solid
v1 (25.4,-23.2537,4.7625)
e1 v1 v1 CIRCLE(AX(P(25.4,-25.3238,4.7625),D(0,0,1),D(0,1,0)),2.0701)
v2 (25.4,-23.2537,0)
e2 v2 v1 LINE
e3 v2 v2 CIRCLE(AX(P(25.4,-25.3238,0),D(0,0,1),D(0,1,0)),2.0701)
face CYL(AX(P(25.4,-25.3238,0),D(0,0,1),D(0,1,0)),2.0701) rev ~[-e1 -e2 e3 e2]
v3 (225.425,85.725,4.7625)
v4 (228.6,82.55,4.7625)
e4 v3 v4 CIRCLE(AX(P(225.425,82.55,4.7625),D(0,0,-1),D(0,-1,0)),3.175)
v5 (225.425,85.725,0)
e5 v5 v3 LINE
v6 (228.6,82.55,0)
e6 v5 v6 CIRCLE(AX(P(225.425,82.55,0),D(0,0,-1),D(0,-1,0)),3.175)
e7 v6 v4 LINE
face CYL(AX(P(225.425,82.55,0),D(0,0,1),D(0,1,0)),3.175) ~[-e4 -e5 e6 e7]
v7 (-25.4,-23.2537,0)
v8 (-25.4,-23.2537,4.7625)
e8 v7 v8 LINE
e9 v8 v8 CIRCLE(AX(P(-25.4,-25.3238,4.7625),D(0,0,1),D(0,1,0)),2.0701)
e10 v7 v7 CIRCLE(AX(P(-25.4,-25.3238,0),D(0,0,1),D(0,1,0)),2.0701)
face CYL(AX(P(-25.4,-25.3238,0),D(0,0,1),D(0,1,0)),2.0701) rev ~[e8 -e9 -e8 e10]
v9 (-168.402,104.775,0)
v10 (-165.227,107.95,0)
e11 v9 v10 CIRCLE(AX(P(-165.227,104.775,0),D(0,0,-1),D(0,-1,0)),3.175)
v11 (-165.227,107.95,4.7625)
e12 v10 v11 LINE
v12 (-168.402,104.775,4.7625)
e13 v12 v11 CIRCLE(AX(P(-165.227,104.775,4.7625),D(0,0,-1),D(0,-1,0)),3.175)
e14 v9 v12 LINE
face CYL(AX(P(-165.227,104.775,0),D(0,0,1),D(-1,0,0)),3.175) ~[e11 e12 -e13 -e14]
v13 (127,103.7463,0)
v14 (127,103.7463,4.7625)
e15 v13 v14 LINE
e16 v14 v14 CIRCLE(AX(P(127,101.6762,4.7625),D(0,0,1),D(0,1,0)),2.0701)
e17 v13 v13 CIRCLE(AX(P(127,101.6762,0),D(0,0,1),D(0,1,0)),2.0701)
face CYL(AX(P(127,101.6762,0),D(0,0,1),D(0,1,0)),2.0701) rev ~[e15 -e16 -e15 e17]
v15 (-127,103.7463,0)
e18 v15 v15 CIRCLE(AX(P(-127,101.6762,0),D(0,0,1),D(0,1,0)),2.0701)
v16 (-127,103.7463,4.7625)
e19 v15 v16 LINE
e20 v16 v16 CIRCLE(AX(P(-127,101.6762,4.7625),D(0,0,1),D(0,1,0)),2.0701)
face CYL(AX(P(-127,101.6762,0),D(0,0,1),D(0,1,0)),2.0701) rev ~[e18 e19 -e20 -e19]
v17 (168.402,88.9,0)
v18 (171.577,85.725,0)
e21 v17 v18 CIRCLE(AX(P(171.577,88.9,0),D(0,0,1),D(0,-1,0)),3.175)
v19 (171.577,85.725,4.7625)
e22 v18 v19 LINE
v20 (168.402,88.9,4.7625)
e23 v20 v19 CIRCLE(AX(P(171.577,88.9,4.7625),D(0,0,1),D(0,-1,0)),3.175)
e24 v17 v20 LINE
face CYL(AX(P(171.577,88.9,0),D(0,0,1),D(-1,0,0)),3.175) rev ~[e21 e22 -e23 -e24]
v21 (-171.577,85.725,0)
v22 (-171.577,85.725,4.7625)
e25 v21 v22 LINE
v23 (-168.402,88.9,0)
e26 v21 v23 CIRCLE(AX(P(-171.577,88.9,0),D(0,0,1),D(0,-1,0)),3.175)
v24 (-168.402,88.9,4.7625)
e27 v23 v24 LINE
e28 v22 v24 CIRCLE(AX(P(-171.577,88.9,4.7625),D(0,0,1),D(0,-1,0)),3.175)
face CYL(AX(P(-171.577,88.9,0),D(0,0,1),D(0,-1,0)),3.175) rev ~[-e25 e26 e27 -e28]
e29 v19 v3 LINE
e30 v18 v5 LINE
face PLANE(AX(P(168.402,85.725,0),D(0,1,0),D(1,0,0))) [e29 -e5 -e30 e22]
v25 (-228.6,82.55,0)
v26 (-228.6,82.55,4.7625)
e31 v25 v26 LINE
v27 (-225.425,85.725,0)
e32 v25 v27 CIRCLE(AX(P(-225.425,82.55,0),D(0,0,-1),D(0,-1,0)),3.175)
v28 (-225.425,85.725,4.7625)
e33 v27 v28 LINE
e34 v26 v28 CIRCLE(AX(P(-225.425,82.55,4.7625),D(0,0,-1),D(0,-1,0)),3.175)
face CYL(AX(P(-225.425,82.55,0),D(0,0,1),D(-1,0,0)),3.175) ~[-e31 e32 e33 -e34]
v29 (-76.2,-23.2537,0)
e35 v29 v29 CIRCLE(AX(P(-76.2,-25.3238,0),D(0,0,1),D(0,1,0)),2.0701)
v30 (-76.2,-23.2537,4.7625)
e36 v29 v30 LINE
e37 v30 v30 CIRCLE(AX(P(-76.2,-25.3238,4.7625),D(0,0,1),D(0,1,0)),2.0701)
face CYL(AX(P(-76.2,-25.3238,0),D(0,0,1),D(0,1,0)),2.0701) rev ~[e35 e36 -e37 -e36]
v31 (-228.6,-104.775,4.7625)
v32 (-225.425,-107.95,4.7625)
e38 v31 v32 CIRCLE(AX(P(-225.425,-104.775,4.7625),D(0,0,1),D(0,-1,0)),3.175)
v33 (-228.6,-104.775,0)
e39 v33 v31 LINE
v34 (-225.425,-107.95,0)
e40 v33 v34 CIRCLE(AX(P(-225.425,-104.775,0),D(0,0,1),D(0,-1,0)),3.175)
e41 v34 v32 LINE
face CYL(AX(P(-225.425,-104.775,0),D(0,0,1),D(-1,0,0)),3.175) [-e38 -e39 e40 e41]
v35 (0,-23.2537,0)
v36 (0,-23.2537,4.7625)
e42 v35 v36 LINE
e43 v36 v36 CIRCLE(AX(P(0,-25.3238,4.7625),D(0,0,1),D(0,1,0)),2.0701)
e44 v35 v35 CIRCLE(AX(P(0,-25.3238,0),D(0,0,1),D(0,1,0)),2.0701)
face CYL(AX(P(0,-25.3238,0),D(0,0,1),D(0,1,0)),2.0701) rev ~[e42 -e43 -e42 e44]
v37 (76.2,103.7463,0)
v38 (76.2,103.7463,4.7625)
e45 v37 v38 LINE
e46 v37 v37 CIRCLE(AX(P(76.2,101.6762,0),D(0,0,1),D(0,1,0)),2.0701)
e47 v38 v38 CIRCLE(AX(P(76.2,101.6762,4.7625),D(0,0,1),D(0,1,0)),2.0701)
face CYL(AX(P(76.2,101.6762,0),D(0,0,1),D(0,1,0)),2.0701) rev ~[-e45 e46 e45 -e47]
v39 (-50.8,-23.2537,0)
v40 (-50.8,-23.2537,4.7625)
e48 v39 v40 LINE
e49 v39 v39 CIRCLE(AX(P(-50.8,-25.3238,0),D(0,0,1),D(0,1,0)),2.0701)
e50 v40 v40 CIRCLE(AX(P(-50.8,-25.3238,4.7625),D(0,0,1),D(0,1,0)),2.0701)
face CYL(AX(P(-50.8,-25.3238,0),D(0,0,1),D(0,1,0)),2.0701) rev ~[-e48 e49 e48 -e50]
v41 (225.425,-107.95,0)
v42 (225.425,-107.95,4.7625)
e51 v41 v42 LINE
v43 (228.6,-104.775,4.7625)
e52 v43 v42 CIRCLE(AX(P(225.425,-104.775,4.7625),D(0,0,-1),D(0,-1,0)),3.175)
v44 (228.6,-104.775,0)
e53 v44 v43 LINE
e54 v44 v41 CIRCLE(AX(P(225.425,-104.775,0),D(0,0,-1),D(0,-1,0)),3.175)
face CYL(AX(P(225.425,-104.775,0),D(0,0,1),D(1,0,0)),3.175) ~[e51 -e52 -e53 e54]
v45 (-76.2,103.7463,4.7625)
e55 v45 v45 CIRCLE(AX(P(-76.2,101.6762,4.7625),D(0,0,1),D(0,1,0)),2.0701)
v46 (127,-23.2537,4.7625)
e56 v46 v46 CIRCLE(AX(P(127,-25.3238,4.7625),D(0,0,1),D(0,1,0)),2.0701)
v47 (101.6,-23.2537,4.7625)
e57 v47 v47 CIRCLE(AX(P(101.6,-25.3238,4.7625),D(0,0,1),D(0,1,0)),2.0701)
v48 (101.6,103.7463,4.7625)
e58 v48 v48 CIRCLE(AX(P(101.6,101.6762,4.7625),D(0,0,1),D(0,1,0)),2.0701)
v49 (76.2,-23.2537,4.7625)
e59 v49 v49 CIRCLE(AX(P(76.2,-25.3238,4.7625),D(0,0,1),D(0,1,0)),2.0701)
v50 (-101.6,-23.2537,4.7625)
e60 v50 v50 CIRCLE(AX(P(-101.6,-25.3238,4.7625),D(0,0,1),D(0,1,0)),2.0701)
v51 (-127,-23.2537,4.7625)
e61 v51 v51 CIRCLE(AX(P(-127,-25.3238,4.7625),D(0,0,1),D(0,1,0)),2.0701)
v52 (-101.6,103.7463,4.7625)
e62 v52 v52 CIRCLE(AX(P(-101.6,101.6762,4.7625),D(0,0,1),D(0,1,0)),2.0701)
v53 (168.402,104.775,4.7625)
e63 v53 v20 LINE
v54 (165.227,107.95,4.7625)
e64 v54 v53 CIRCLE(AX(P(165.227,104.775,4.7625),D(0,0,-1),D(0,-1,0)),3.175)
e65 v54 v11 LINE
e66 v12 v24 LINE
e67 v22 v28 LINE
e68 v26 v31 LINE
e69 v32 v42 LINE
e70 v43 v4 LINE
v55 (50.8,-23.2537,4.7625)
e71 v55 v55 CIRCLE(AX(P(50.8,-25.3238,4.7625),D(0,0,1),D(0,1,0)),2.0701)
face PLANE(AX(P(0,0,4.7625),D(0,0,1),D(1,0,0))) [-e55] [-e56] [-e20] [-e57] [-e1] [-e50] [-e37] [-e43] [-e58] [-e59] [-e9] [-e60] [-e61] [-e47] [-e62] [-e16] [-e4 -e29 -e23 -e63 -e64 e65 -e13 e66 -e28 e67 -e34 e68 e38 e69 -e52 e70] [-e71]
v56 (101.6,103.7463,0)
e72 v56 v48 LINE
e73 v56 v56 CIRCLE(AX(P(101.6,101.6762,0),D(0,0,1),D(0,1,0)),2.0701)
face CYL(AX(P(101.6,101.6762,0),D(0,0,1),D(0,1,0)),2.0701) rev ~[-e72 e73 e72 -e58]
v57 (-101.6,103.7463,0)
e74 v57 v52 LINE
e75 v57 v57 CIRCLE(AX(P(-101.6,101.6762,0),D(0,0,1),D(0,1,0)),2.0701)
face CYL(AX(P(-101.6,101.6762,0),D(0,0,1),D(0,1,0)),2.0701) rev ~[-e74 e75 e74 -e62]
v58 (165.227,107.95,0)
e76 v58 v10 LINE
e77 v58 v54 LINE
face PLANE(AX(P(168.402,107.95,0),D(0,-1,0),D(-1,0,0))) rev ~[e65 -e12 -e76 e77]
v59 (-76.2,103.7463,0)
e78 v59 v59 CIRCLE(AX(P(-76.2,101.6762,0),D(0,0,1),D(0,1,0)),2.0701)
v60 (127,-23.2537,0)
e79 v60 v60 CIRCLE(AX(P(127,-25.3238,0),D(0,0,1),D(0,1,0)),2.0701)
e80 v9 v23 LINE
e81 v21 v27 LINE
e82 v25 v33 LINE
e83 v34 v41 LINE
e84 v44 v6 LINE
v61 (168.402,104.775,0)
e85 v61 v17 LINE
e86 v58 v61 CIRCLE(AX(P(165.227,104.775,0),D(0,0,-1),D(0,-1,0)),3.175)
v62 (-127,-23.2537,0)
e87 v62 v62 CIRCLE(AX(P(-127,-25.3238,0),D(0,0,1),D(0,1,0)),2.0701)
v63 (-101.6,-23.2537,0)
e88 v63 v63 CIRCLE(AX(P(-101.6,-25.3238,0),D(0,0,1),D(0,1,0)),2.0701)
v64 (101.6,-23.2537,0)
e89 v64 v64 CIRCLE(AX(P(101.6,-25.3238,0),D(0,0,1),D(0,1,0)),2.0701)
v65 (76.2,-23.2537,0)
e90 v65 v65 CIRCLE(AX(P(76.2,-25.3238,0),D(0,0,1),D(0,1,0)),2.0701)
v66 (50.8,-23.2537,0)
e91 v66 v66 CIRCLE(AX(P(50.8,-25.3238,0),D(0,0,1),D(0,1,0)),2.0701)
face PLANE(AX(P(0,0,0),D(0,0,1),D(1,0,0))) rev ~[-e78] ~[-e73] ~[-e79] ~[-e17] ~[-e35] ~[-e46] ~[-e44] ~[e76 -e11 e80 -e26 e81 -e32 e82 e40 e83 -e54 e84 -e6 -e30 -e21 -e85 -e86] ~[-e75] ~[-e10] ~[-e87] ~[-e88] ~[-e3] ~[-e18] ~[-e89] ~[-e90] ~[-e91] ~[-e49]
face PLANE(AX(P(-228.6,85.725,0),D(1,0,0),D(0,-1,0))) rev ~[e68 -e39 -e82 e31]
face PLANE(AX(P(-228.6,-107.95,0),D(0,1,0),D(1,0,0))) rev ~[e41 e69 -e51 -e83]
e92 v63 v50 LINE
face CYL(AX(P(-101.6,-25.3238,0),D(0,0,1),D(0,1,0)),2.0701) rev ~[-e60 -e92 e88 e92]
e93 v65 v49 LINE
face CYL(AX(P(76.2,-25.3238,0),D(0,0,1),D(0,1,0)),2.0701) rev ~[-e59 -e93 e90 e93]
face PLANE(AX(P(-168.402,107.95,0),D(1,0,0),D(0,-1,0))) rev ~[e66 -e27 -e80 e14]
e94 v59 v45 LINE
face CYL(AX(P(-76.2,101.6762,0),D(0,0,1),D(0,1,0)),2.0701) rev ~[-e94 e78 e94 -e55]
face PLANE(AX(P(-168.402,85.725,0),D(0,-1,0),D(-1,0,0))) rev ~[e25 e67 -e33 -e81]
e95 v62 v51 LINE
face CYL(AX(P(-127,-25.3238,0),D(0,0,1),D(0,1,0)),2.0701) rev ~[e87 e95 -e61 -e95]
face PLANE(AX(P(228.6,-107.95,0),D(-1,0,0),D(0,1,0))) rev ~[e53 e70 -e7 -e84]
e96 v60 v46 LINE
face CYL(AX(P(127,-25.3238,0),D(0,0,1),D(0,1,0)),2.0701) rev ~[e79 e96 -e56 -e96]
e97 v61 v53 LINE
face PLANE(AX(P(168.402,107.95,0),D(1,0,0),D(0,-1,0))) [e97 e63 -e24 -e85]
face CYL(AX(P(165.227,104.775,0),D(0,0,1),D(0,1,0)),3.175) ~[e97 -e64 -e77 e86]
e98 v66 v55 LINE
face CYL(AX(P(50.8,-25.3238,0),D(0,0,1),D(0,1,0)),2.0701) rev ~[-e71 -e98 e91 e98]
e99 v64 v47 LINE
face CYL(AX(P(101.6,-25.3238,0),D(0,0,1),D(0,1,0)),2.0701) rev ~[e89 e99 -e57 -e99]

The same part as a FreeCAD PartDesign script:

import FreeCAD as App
import Part
import Sketcher
from FreeCAD import Vector
Q = App.Units.Quantity


def edges_at(feature, points):
    """Names of the edges that pass closest to the given points."""
    edges = feature.Shape.Edges
    near = lambda p: min(range(len(edges)), key=lambda i: edges[i].distToShape(Part.Vertex(*p))[0])
    return sorted({f"Edge{near(p) + 1}" for p in points})


def add_polygon(sketch, points):
    """Adds a closed chain of lines whose ends are joined by coincident constraints."""
    first, n = sketch.GeometryCount, len(points)
    for a, b in zip(points, points[1:] + points[:1]):
        sketch.addGeometry(Part.LineSegment(App.Vector(*a, 0), App.Vector(*b, 0)), False)
    for i in range(n):
        sketch.addConstraint(Sketcher.Constraint("Coincident", first + i, 2, first + (i + 1) % n, 1))

doc = App.newDocument("Part")
body = doc.addObject("PartDesign::Body", "Body")

# Sketch on XY plane
sketch1 = body.newObject("Sketcher::SketchObject", "Sketch")
sketch1.AttachmentSupport = (doc.getObject("XY_Plane"), [""])
sketch1.MapMode = "FlatFace"
add_polygon(sketch1, [(-229, 86), (-229, -108), (229, -108), (229, 86), (168, 86), (168, 108), (-168, 108), (-168, 86)])  # lines 0-7
sketch1.addConstraint(Sketcher.Constraint("Vertical", 0))
sketch1.addConstraint(Sketcher.Constraint("Horizontal", 1))
sketch1.addConstraint(Sketcher.Constraint("Vertical", 2))
sketch1.addConstraint(Sketcher.Constraint("Horizontal", 3))
sketch1.addConstraint(Sketcher.Constraint("Vertical", 4))
sketch1.addConstraint(Sketcher.Constraint("Horizontal", 5))
sketch1.addConstraint(Sketcher.Constraint("Vertical", 6))
sketch1.addConstraint(Sketcher.Constraint("Horizontal", 7))
sketch1.addConstraint(Sketcher.Constraint("Symmetric", 3, 2, 6, 2, -2))
sketch1.addConstraint(Sketcher.Constraint("Equal", 3, 7))
sketch1.addConstraint(Sketcher.Constraint("DistanceX", 1, 1, 1, 2, Q("18 in")))
sketch1.addConstraint(Sketcher.Constraint("DistanceY", 1, 2, 4, 2, Q("8.5 in")))
sketch1.addConstraint(Sketcher.Constraint("DistanceX", 3, 2, 3, 1, Q("2.37 in")))
sketch1.addConstraint(Sketcher.Constraint("DistanceY", 0, 2, 0, 1, Q("7.625 in")))
sketch1.addConstraint(Sketcher.Constraint("DistanceY", 0, 2, -1, 1, Q("4.25 in")))
pad1 = body.newObject("PartDesign::Pad", "Pad")
pad1.Profile = sketch1
pad1.Length = Q("0.1875 in")
doc.recompute()

fillet = body.newObject("PartDesign::Fillet", "Fillet")
fillet.Base = (pad1, edges_at(pad1, [
    (228.6, -107.95, 2.381),
    (168.402, 107.95, 2.381),
    (168.402, 85.725, 2.381),
    (228.6, 85.725, 2.381),
    (-168.402, 107.95, 2.381),
    (-168.402, 85.725, 2.381),
    (-228.6, 85.725, 2.381),
    (-228.6, -107.95, 2.381),
]))
fillet.Radius = Q("0.125 in")

# Sketch on XY plane
sketch2 = body.newObject("Sketcher::SketchObject", "Sketch001")
sketch2.AttachmentSupport = (doc.getObject("XY_Plane"), [""])
sketch2.MapMode = "FlatFace"
sketch2.addGeometry(Part.Circle(Vector(-127, 101.7, 0), Vector(0, 0, 1), 2.1), False)
sketch2.addGeometry(Part.Circle(Vector(-101.6, 101.7, 0), Vector(0, 0, 1), 2.1), False)
sketch2.addGeometry(Part.Circle(Vector(-76.2, 101.7, 0), Vector(0, 0, 1), 2.1), False)
sketch2.addGeometry(Part.Circle(Vector(76.2, 101.7, 0), Vector(0, 0, 1), 2.1), False)
sketch2.addGeometry(Part.Circle(Vector(101.6, 101.7, 0), Vector(0, 0, 1), 2.1), False)
sketch2.addGeometry(Part.Circle(Vector(127, 101.7, 0), Vector(0, 0, 1), 2.1), False)
sketch2.addGeometry(Part.Circle(Vector(-127, -25.3, 0), Vector(0, 0, 1), 2.1), False)
sketch2.addGeometry(Part.Circle(Vector(-101.6, -25.3, 0), Vector(0, 0, 1), 2.1), False)
sketch2.addGeometry(Part.Circle(Vector(-76.2, -25.3, 0), Vector(0, 0, 1), 2.1), False)
sketch2.addGeometry(Part.Circle(Vector(-50.8, -25.3, 0), Vector(0, 0, 1), 2.1), False)
sketch2.addGeometry(Part.Circle(Vector(-25.4, -25.3, 0), Vector(0, 0, 1), 2.1), False)
sketch2.addGeometry(Part.Circle(Vector(0, -25.3, 0), Vector(0, 0, 1), 2.1), False)
sketch2.addGeometry(Part.Circle(Vector(25.4, -25.3, 0), Vector(0, 0, 1), 2.1), False)
sketch2.addGeometry(Part.Circle(Vector(50.8, -25.3, 0), Vector(0, 0, 1), 2.1), False)
sketch2.addGeometry(Part.Circle(Vector(76.2, -25.3, 0), Vector(0, 0, 1), 2.1), False)
sketch2.addGeometry(Part.Circle(Vector(101.6, -25.3, 0), Vector(0, 0, 1), 2.1), False)
sketch2.addGeometry(Part.Circle(Vector(127, -25.3, 0), Vector(0, 0, 1), 2.1), False)
sketch2.addConstraint(Sketcher.Constraint("Equal", 0, 1))
sketch2.addConstraint(Sketcher.Constraint("Equal", 1, 2))
sketch2.addConstraint(Sketcher.Constraint("Equal", 2, 3))
sketch2.addConstraint(Sketcher.Constraint("Equal", 3, 4))
sketch2.addConstraint(Sketcher.Constraint("Equal", 4, 5))
sketch2.addConstraint(Sketcher.Constraint("Equal", 5, 6))
sketch2.addConstraint(Sketcher.Constraint("Equal", 6, 7))
sketch2.addConstraint(Sketcher.Constraint("Equal", 7, 8))
sketch2.addConstraint(Sketcher.Constraint("Equal", 8, 9))
sketch2.addConstraint(Sketcher.Constraint("Equal", 9, 10))
sketch2.addConstraint(Sketcher.Constraint("Equal", 10, 11))
sketch2.addConstraint(Sketcher.Constraint("Equal", 11, 12))
sketch2.addConstraint(Sketcher.Constraint("Equal", 12, 13))
sketch2.addConstraint(Sketcher.Constraint("Equal", 13, 14))
sketch2.addConstraint(Sketcher.Constraint("Equal", 14, 15))
sketch2.addConstraint(Sketcher.Constraint("Equal", 15, 16))
sketch2.addConstraint(Sketcher.Constraint("Symmetric", 2, 3, 3, 3, -2))
sketch2.addConstraint(Sketcher.Constraint("Symmetric", 1, 3, 4, 3, -2))
sketch2.addConstraint(Sketcher.Constraint("Symmetric", 0, 3, 5, 3, -2))
sketch2.addConstraint(Sketcher.Constraint("Symmetric", 10, 3, 12, 3, -2))
sketch2.addConstraint(Sketcher.Constraint("Symmetric", 9, 3, 13, 3, -2))
sketch2.addConstraint(Sketcher.Constraint("Symmetric", 8, 3, 14, 3, -2))
sketch2.addConstraint(Sketcher.Constraint("Symmetric", 7, 3, 15, 3, -2))
sketch2.addConstraint(Sketcher.Constraint("Symmetric", 6, 3, 16, 3, -2))
sketch2.addConstraint(Sketcher.Constraint("PointOnObject", 11, 3, -2))
sketch2.addConstraint(Sketcher.Constraint("Horizontal", 0, 3, 1, 3))
sketch2.addConstraint(Sketcher.Constraint("Horizontal", 1, 3, 2, 3))
sketch2.addConstraint(Sketcher.Constraint("Horizontal", 6, 3, 7, 3))
sketch2.addConstraint(Sketcher.Constraint("Horizontal", 7, 3, 8, 3))
sketch2.addConstraint(Sketcher.Constraint("Horizontal", 8, 3, 9, 3))
sketch2.addConstraint(Sketcher.Constraint("Horizontal", 9, 3, 10, 3))
sketch2.addConstraint(Sketcher.Constraint("Horizontal", 10, 3, 11, 3))
sketch2.addConstraint(Sketcher.Constraint("Vertical", 0, 3, 6, 3))
sketch2.addConstraint(Sketcher.Constraint("Vertical", 1, 3, 7, 3))
sketch2.addConstraint(Sketcher.Constraint("Vertical", 2, 3, 8, 3))
sketch2.addConstraint(Sketcher.Constraint("Diameter", 0, Q("0.163 in")))
sketch2.addConstraint(Sketcher.Constraint("DistanceX", 0, 3, -1, 1, Q("5 in")))
sketch2.addConstraint(Sketcher.Constraint("DistanceX", 1, 3, -1, 1, Q("4 in")))
sketch2.addConstraint(Sketcher.Constraint("DistanceX", 2, 3, -1, 1, Q("3 in")))
sketch2.addConstraint(Sketcher.Constraint("DistanceX", 9, 3, -1, 1, Q("2 in")))
sketch2.addConstraint(Sketcher.Constraint("DistanceX", 10, 3, -1, 1, Q("1 in")))
sketch2.addConstraint(Sketcher.Constraint("DistanceY", 6, 3, 0, 3, Q("5 in")))
sketch2.addConstraint(Sketcher.Constraint("DistanceY", -1, 1, 0, 3, Q("4.003 in")))
doc.recompute()
hole = body.newObject("PartDesign::Hole", "Hole")
hole.Profile = sketch2
hole.ThreadType = "None"
hole.Diameter = Q("0.163 in")
hole.DepthType = "ThroughAll"
hole.Reversed = True

doc.recompute()
